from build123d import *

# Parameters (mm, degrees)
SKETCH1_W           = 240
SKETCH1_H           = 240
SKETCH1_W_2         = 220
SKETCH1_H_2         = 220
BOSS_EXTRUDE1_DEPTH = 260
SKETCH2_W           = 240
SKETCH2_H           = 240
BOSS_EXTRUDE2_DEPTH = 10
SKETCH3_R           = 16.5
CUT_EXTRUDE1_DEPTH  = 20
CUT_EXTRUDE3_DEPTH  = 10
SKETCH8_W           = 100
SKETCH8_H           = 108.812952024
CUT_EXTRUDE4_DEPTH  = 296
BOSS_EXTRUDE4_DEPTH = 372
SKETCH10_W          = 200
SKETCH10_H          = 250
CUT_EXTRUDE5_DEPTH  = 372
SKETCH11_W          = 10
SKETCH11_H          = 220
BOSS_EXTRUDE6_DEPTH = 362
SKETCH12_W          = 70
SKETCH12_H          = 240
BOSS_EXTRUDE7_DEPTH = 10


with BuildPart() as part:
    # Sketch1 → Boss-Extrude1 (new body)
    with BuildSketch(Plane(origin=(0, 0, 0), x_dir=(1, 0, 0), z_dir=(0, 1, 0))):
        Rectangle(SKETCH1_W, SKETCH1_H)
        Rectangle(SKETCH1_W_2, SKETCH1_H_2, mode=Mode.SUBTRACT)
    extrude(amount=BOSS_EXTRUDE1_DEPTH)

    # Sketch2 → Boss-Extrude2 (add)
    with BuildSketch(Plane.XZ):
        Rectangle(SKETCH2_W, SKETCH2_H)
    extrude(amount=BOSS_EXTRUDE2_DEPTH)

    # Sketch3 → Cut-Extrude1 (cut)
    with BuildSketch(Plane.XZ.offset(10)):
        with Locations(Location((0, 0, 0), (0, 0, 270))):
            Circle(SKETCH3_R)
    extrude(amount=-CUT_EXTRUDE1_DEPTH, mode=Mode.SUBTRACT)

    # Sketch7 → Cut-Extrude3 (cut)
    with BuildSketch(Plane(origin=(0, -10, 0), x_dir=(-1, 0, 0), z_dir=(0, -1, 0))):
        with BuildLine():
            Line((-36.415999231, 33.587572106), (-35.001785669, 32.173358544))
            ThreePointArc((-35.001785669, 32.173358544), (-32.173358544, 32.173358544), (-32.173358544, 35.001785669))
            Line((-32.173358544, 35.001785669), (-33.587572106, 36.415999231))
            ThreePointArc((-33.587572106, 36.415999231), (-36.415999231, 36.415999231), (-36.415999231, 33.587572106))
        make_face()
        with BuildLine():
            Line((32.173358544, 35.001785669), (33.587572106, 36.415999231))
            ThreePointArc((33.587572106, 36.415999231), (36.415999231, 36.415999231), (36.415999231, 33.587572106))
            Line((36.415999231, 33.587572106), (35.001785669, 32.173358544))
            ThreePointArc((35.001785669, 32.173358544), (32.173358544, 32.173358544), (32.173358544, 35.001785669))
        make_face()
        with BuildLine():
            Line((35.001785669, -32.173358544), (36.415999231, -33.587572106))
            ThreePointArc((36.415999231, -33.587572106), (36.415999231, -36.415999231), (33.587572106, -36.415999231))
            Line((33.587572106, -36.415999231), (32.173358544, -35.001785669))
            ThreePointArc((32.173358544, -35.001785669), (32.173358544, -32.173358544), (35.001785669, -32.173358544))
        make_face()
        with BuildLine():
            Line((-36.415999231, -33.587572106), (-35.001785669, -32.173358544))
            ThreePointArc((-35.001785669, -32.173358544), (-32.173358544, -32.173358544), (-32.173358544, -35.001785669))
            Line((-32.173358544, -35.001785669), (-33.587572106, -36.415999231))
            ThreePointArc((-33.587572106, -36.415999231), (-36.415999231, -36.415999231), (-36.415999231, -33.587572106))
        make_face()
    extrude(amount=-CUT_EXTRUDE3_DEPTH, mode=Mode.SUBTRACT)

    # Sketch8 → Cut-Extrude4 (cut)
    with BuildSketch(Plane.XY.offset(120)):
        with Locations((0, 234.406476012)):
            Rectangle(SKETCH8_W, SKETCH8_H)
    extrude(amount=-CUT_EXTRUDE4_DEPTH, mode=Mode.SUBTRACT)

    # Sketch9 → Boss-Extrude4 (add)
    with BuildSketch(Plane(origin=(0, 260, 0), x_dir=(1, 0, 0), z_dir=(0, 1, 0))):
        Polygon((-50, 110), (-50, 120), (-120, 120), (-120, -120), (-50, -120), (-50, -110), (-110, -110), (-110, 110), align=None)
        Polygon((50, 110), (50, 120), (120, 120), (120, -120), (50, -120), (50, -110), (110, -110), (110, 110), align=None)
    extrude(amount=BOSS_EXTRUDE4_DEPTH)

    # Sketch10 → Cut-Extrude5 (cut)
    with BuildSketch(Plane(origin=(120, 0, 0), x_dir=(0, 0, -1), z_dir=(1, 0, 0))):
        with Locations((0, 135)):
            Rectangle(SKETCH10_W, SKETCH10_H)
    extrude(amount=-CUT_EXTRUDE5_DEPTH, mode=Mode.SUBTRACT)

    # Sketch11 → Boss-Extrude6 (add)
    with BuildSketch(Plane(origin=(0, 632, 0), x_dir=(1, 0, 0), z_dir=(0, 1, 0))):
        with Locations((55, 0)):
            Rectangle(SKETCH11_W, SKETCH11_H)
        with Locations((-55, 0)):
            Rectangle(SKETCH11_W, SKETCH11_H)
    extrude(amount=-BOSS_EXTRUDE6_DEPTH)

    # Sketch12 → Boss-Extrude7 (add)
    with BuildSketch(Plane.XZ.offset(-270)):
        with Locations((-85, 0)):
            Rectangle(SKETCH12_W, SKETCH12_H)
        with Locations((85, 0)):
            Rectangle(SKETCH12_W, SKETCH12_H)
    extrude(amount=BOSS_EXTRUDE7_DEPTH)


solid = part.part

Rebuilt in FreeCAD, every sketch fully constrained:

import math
import FreeCAD as App
import Part
import Sketcher

V = App.Vector
Q = App.Units.Quantity

doc = App.newDocument("Part")
params = doc.addObject("Spreadsheet::Sheet", "Params")
for row, (alias, value) in enumerate([
    ("sketch1_width", "240 mm"),
    ("sketch1_width2", "220 mm"),
    ("pad1_length", "260 mm"),
    ("sketch2_width", "240 mm"),
    ("pad2_length", "10 mm"),
    ("sketch3_diameter", "33 mm"),
    ("pocket1_length", "20 mm"),
    ("sketch4_radius", "2 mm"),
    ("pocket2_length", "10 mm"),
    ("sketch5_width", "100 mm"),
    ("pocket3_length", "296 mm"),
    ("sketch6_width", "70 mm"),
    ("sketch6_width2", "60 mm"),
    ("sketch6_height", "10 mm"),
    ("sketch6_height2", "240 mm"),
    ("pad3_length", "372 mm"),
    ("sketch7_width", "250 mm"),
    ("sketch7_height", "200 mm"),
    ("pocket4_length", "372 mm"),
    ("sketch8_width", "10 mm"),
    ("sketch8_height", "220 mm"),
    ("pad4_length", "362 mm"),
    ("sketch9_width", "70 mm"),
    ("sketch9_height", "240 mm"),
    ("pad5_length", "10 mm"),
], start=1):
    params.set(f"A{row}", alias)
    params.set(f"B{row}", "=" + value)
    params.setAlias(f"B{row}", alias)

body = doc.addObject("PartDesign::Body", "Body")

# Sketch on XZ plane
sketch1 = doc.addObject("Sketcher::SketchObject", "Sketch")
body.addObject(sketch1)
sketch1.AttachmentSupport = (doc.XZ_Plane, [""])
sketch1.MapMode = "FlatFace"
sketch1.addGeometry([
    Part.LineSegment(V(-120, -120, 0), V(-120, 120, 0)),  # 0
    Part.LineSegment(V(-120, 120, 0), V(120, 120, 0)),  # 1
    Part.LineSegment(V(120, 120, 0), V(120, -120, 0)),  # 2
    Part.LineSegment(V(120, -120, 0), V(-120, -120, 0)),  # 3
    Part.LineSegment(V(110, 110, 0), V(-110, 110, 0)),  # 4
    Part.LineSegment(V(-110, 110, 0), V(-110, -110, 0)),  # 5
    Part.LineSegment(V(-110, -110, 0), V(110, -110, 0)),  # 6
    Part.LineSegment(V(110, -110, 0), V(110, 110, 0)),  # 7
], False)
sketch1.addConstraint([
    Sketcher.Constraint("Coincident", 0, 2, 1, 1),
    Sketcher.Constraint("Coincident", 1, 2, 2, 1),
    Sketcher.Constraint("Coincident", 2, 2, 3, 1),
    Sketcher.Constraint("Coincident", 3, 2, 0, 1),
    Sketcher.Constraint("Coincident", 4, 2, 5, 1),
    Sketcher.Constraint("Coincident", 5, 2, 6, 1),
    Sketcher.Constraint("Coincident", 6, 2, 7, 1),
    Sketcher.Constraint("Coincident", 7, 2, 4, 1),
    Sketcher.Constraint("Vertical", 0),
    Sketcher.Constraint("Horizontal", 1),
    Sketcher.Constraint("Vertical", 2),
    Sketcher.Constraint("Horizontal", 3),
    Sketcher.Constraint("Horizontal", 4),
    Sketcher.Constraint("Vertical", 5),
    Sketcher.Constraint("Horizontal", 6),
    Sketcher.Constraint("Vertical", 7),
    Sketcher.Constraint("Symmetric", 0, 2, 2, 2, -1, 1),
    Sketcher.Constraint("Symmetric", 4, 2, 6, 2, -1, 1),
    Sketcher.Constraint("Equal", 3, 0),
    Sketcher.Constraint("Equal", 6, 5),
    Sketcher.Constraint("DistanceX", 1, 1, 1, 2, Q("240 mm")),
    Sketcher.Constraint("DistanceX", 4, 2, 4, 1, Q("220 mm")),
])
sketch1.setExpression("Constraints[20]", "Params.sketch1_width")
sketch1.setExpression("Constraints[21]", "Params.sketch1_width2")
pad1 = doc.addObject("PartDesign::Pad", "Pad")
body.addObject(pad1)
pad1.Profile = sketch1
pad1.setExpression("Length", "Params.pad1_length")
pad1.Reversed = True

# Sketch on XZ plane
sketch2 = doc.addObject("Sketcher::SketchObject", "Sketch001")
body.addObject(sketch2)
sketch2.AttachmentSupport = (doc.XZ_Plane, [""])
sketch2.MapMode = "FlatFace"
sketch2.addGeometry([
    Part.LineSegment(V(-120, 120, 0), V(-120, -120, 0)),
    Part.LineSegment(V(-120, -120, 0), V(120, -120, 0)),
    Part.LineSegment(V(120, -120, 0), V(120, 120, 0)),
    Part.LineSegment(V(120, 120, 0), V(-120, 120, 0)),
], False)
sketch2.addConstraint([
    Sketcher.Constraint("Coincident", 0, 2, 1, 1),
    Sketcher.Constraint("Coincident", 1, 2, 2, 1),
    Sketcher.Constraint("Coincident", 2, 2, 3, 1),
    Sketcher.Constraint("Coincident", 3, 2, 0, 1),
    Sketcher.Constraint("Vertical", 0),
    Sketcher.Constraint("Horizontal", 1),
    Sketcher.Constraint("Vertical", 2),
    Sketcher.Constraint("Horizontal", 3),
    Sketcher.Constraint("Symmetric", 0, 2, 2, 2, -1, 1),
    Sketcher.Constraint("Equal", 3, 0),
    Sketcher.Constraint("DistanceX", 1, 1, 1, 2, Q("240 mm")),
])
sketch2.setExpression("Constraints[10]", "Params.sketch2_width")
pad2 = doc.addObject("PartDesign::Pad", "Pad001")
body.addObject(pad2)
pad2.Profile = sketch2
pad2.setExpression("Length", "Params.pad2_length")

# Sketch on XZ plane
sketch3 = doc.addObject("Sketcher::SketchObject", "Sketch002")
body.addObject(sketch3)
sketch3.AttachmentSupport = (doc.XZ_Plane, [""])
sketch3.MapMode = "FlatFace"
sketch3.AttachmentOffset = App.Placement(V(0, 0, 10), App.Rotation())
sketch3.addGeometry(Part.Circle(V(0, 0, 0), V(0, 0, 1), 16), False)
sketch3.addConstraint([
    Sketcher.Constraint("Coincident", 0, 3, -1, 1),
    Sketcher.Constraint("Diameter", 0, Q("33 mm")),
])
sketch3.setExpression("Constraints[1]", "Params.sketch3_diameter")
pocket1 = doc.addObject("PartDesign::Pocket", "Pocket")
body.addObject(pocket1)
pocket1.Profile = sketch3
pocket1.setExpression("Length", "Params.pocket1_length")

# Sketch on XZ plane
sketch4 = doc.addObject("Sketcher::SketchObject", "Sketch003")
body.addObject(sketch4)
sketch4.AttachmentSupport = (doc.XZ_Plane, [""])
sketch4.MapMode = "FlatFace"
sketch4.AttachmentOffset = App.Placement(V(0, 0, 10), App.Rotation())
sketch4.addGeometry([
    Part.LineSegment(V(36.4, -33.6, 0), V(35, -32.2, 0)),  # 0
    Part.ArcOfCircle(Part.Circle(V(33.6, -33.6, 0), V(0, 0, 1), 2), math.radians(45), math.radians(225)),  # 1
    Part.LineSegment(V(32.2, -35, 0), V(33.6, -36.4, 0)),  # 2
    Part.ArcOfCircle(Part.Circle(V(35, -35, 0), V(0, 0, 1), 2), math.radians(-135), math.radians(45)),  # 3
    Part.LineSegment(V(-33.6, -36.4, 0), V(-32.2, -35, 0)),  # 4
    Part.ArcOfCircle(Part.Circle(V(-33.6, -33.6, 0), V(0, 0, 1), 2), math.radians(-45), math.radians(135)),  # 5
    Part.LineSegment(V(-35, -32.2, 0), V(-36.4, -33.6, 0)),  # 6
    Part.ArcOfCircle(Part.Circle(V(-35, -35, 0), V(0, 0, 1), 2), math.radians(135), math.radians(315)),  # 7
    Part.LineSegment(V(-36.4, 33.6, 0), V(-35, 32.2, 0)),  # 8
    Part.ArcOfCircle(Part.Circle(V(-33.6, 33.6, 0), V(0, 0, 1), 2), math.radians(-135), math.radians(45)),  # 9
    Part.LineSegment(V(-32.2, 35, 0), V(-33.6, 36.4, 0)),  # 10
    Part.ArcOfCircle(Part.Circle(V(-35, 35, 0), V(0, 0, 1), 2), math.radians(45), math.radians(225)),  # 11
    Part.LineSegment(V(35, 32.2, 0), V(36.4, 33.6, 0)),  # 12
    Part.ArcOfCircle(Part.Circle(V(35, 35, 0), V(0, 0, 1), 2), math.radians(-45), math.radians(135)),  # 13
    Part.LineSegment(V(33.6, 36.4, 0), V(32.2, 35, 0)),  # 14
    Part.ArcOfCircle(Part.Circle(V(33.6, 33.6, 0), V(0, 0, 1), 2), math.radians(135), math.radians(315)),  # 15
], False)
sketch4.addConstraint([
    Sketcher.Constraint("Tangent", 0, 2, 1, 1),
    Sketcher.Constraint("Tangent", 1, 2, 2, 1),
    Sketcher.Constraint("Tangent", 2, 2, 3, 1),
    Sketcher.Constraint("Tangent", 3, 2, 0, 1),
    Sketcher.Constraint("Tangent", 4, 2, 5, 1),
    Sketcher.Constraint("Tangent", 5, 2, 6, 1),
    Sketcher.Constraint("Tangent", 6, 2, 7, 1),
    Sketcher.Constraint("Tangent", 7, 2, 4, 1),
    Sketcher.Constraint("Tangent", 8, 2, 9, 1),
    Sketcher.Constraint("Tangent", 9, 2, 10, 1),
    Sketcher.Constraint("Tangent", 10, 2, 11, 1),
    Sketcher.Constraint("Tangent", 11, 2, 8, 1),
    Sketcher.Constraint("Tangent", 12, 2, 13, 1),
    Sketcher.Constraint("Tangent", 13, 2, 14, 1),
    Sketcher.Constraint("Tangent", 14, 2, 15, 1),
    Sketcher.Constraint("Tangent", 15, 2, 12, 1),
    Sketcher.Constraint("Equal", 1, 3),
    Sketcher.Constraint("Equal", 3, 5),
    Sketcher.Constraint("Equal", 5, 7),
    Sketcher.Constraint("Equal", 7, 9),
    Sketcher.Constraint("Equal", 9, 11),
    Sketcher.Constraint("Equal", 11, 13),
    Sketcher.Constraint("Equal", 13, 15),
    Sketcher.Constraint("Symmetric", 1, 3, 9, 3, -1, 1),
    Sketcher.Constraint("Symmetric", 3, 3, 11, 3, -1, 1),
    Sketcher.Constraint("Symmetric", 7, 3, 13, 3, -1, 1),
    Sketcher.Constraint("Symmetric", 5, 3, 15, 3, -1, 1),
    Sketcher.Constraint("Symmetric", 1, 3, 5, 3, -2),
    Sketcher.Constraint("Symmetric", 3, 3, 7, 3, -2),
    Sketcher.Constraint("Perpendicular", 2, 4),
    Sketcher.Constraint("Horizontal", 7, 3, 1, 2),
    Sketcher.Constraint("Radius", 1, Q("2 mm")),
    Sketcher.Constraint("DistanceY", 2, 2, -1, 1, Q("36.415999 mm")),
    Sketcher.Constraint("DistanceX", -1, 1, 3, 2, Q("36.415999 mm")),
])
sketch4.setExpression("Constraints[31]", "Params.sketch4_radius")
pocket2 = doc.addObject("PartDesign::Pocket", "Pocket001")
body.addObject(pocket2)
pocket2.Profile = sketch4
pocket2.setExpression("Length", "Params.pocket2_length")

# Sketch on XY plane
sketch5 = doc.addObject("Sketcher::SketchObject", "Sketch004")
body.addObject(sketch5)
sketch5.AttachmentSupport = (doc.XY_Plane, [""])
sketch5.MapMode = "FlatFace"
sketch5.AttachmentOffset = App.Placement(V(0, 0, 120), App.Rotation())
sketch5.addGeometry([
    Part.LineSegment(V(-50, 289, 0), V(-50, 180, 0)),
    Part.LineSegment(V(-50, 180, 0), V(50, 180, 0)),
    Part.LineSegment(V(50, 180, 0), V(50, 289, 0)),
    Part.LineSegment(V(50, 289, 0), V(-50, 289, 0)),
], False)
sketch5.addConstraint([
    Sketcher.Constraint("Coincident", 0, 2, 1, 1),
    Sketcher.Constraint("Coincident", 1, 2, 2, 1),
    Sketcher.Constraint("Coincident", 2, 2, 3, 1),
    Sketcher.Constraint("Coincident", 3, 2, 0, 1),
    Sketcher.Constraint("Vertical", 0),
    Sketcher.Constraint("Horizontal", 1),
    Sketcher.Constraint("Vertical", 2),
    Sketcher.Constraint("Horizontal", 3),
    Sketcher.Constraint("DistanceX", 1, 1, 1, 2, Q("100 mm")),
    Sketcher.Constraint("DistanceX", 0, 2, -1, 1, Q("50 mm")),
    Sketcher.Constraint("DistanceY", -1, 1, 0, 2, Q("180 mm")),
    Sketcher.Constraint("DistanceY", 0, 2, 0, 1, Q("108.812952 mm")),
])
sketch5.setExpression("Constraints[8]", "Params.sketch5_width")
pocket3 = doc.addObject("PartDesign::Pocket", "Pocket002")
body.addObject(pocket3)
pocket3.Profile = sketch5
pocket3.setExpression("Length", "Params.pocket3_length")

# Sketch on XZ plane
sketch6 = doc.addObject("Sketcher::SketchObject", "Sketch005")
body.addObject(sketch6)
sketch6.AttachmentSupport = (doc.XZ_Plane, [""])
sketch6.MapMode = "FlatFace"
sketch6.AttachmentOffset = App.Placement(V(0, 0, -260), App.Rotation())
sketch6.addGeometry([
    Part.LineSegment(V(-50, -110, 0), V(-50, -120, 0)),  # 0
    Part.LineSegment(V(-50, -120, 0), V(-120, -120, 0)),  # 1
    Part.LineSegment(V(-120, -120, 0), V(-120, 120, 0)),  # 2
    Part.LineSegment(V(-120, 120, 0), V(-50, 120, 0)),  # 3
    Part.LineSegment(V(-50, 120, 0), V(-50, 110, 0)),  # 4
    Part.LineSegment(V(-50, 110, 0), V(-110, 110, 0)),  # 5
    Part.LineSegment(V(-110, 110, 0), V(-110, -110, 0)),  # 6
    Part.LineSegment(V(-110, -110, 0), V(-50, -110, 0)),  # 7
    Part.LineSegment(V(50, -120, 0), V(50, -110, 0)),  # 8
    Part.LineSegment(V(50, -110, 0), V(110, -110, 0)),  # 9
    Part.LineSegment(V(110, -110, 0), V(110, 110, 0)),  # 10
    Part.LineSegment(V(110, 110, 0), V(50, 110, 0)),  # 11
    Part.LineSegment(V(50, 110, 0), V(50, 120, 0)),  # 12
    Part.LineSegment(V(50, 120, 0), V(120, 120, 0)),  # 13
    Part.LineSegment(V(120, 120, 0), V(120, -120, 0)),  # 14
    Part.LineSegment(V(120, -120, 0), V(50, -120, 0)),  # 15
], False)
sketch6.addConstraint([
    Sketcher.Constraint("Coincident", 0, 2, 1, 1),
    Sketcher.Constraint("Coincident", 1, 2, 2, 1),
    Sketcher.Constraint("Coincident", 2, 2, 3, 1),
    Sketcher.Constraint("Coincident", 3, 2, 4, 1),
    Sketcher.Constraint("Coincident", 4, 2, 5, 1),
    Sketcher.Constraint("Coincident", 5, 2, 6, 1),
    Sketcher.Constraint("Coincident", 6, 2, 7, 1),
    Sketcher.Constraint("Coincident", 7, 2, 0, 1),
    Sketcher.Constraint("Coincident", 8, 2, 9, 1),
    Sketcher.Constraint("Coincident", 9, 2, 10, 1),
    Sketcher.Constraint("Coincident", 10, 2, 11, 1),
    Sketcher.Constraint("Coincident", 11, 2, 12, 1),
    Sketcher.Constraint("Coincident", 12, 2, 13, 1),
    Sketcher.Constraint("Coincident", 13, 2, 14, 1),
    Sketcher.Constraint("Coincident", 14, 2, 15, 1),
    Sketcher.Constraint("Coincident", 15, 2, 8, 1),
    Sketcher.Constraint("Vertical", 0),
    Sketcher.Constraint("Horizontal", 1),
    Sketcher.Constraint("Vertical", 2),
    Sketcher.Constraint("Horizontal", 3),
    Sketcher.Constraint("Vertical", 4),
    Sketcher.Constraint("Horizontal", 5),
    Sketcher.Constraint("Vertical", 6),
    Sketcher.Constraint("Horizontal", 7),
    Sketcher.Constraint("Vertical", 8),
    Sketcher.Constraint("Horizontal", 9),
    Sketcher.Constraint("Vertical", 10),
    Sketcher.Constraint("Horizontal", 11),
    Sketcher.Constraint("Vertical", 12),
    Sketcher.Constraint("Horizontal", 13),
    Sketcher.Constraint("Vertical", 14),
    Sketcher.Constraint("Horizontal", 15),
    Sketcher.Constraint("Symmetric", 4, 2, 8, 2, -1, 1),
    Sketcher.Constraint("Symmetric", 6, 2, 10, 2, -1, 1),
    Sketcher.Constraint("Symmetric", 0, 2, 12, 2, -1, 1),
    Sketcher.Constraint("Symmetric", 2, 2, 14, 2, -1, 1),
    Sketcher.Constraint("Symmetric", 7, 2, 8, 2, -2),
    Sketcher.Constraint("Horizontal", 3, 2, 12, 2),
    Sketcher.Constraint("DistanceX", 1, 2, 1, 1, Q("70 mm")),
    Sketcher.Constraint("DistanceX", 5, 2, 5, 1, Q("60 mm")),
    Sketcher.Constraint("DistanceY", 0, 2, 0, 1, Q("10 mm")),
    Sketcher.Constraint("DistanceY", 2, 1, 2, 2, Q("240 mm")),
    Sketcher.Constraint("DistanceX", 0, 2, -1, 1, Q("50 mm")),
])
sketch6.setExpression("Constraints[38]", "Params.sketch6_width")
sketch6.setExpression("Constraints[39]", "Params.sketch6_width2")
sketch6.setExpression("Constraints[40]", "Params.sketch6_height")
sketch6.setExpression("Constraints[41]", "Params.sketch6_height2")
pad3 = doc.addObject("PartDesign::Pad", "Pad002")
body.addObject(pad3)
pad3.Profile = sketch6
pad3.setExpression("Length", "Params.pad3_length")
pad3.Reversed = True

# Sketch on YZ plane
sketch7 = doc.addObject("Sketcher::SketchObject", "Sketch006")
body.addObject(sketch7)
sketch7.AttachmentSupport = (doc.YZ_Plane, [""])
sketch7.MapMode = "FlatFace"
sketch7.AttachmentOffset = App.Placement(V(0, 0, 120), App.Rotation())
sketch7.addGeometry([
    Part.LineSegment(V(260, 100, 0), V(10, 100, 0)),
    Part.LineSegment(V(10, 100, 0), V(10, -100, 0)),
    Part.LineSegment(V(10, -100, 0), V(260, -100, 0)),
    Part.LineSegment(V(260, -100, 0), V(260, 100, 0)),
], False)
sketch7.addConstraint([
    Sketcher.Constraint("Coincident", 0, 2, 1, 1),
    Sketcher.Constraint("Coincident", 1, 2, 2, 1),
    Sketcher.Constraint("Coincident", 2, 2, 3, 1),
    Sketcher.Constraint("Coincident", 3, 2, 0, 1),
    Sketcher.Constraint("Horizontal", 0),
    Sketcher.Constraint("Vertical", 1),
    Sketcher.Constraint("Horizontal", 2),
    Sketcher.Constraint("Vertical", 3),
    Sketcher.Constraint("DistanceX", 0, 2, 0, 1, Q("250 mm")),
    Sketcher.Constraint("DistanceY", 1, 2, 1, 1, Q("200 mm")),
    Sketcher.Constraint("DistanceX", -1, 1, 0, 2, Q("10 mm")),
    Sketcher.Constraint("DistanceY", -1, 1, 0, 2, Q("100 mm")),
])
sketch7.setExpression("Constraints[8]", "Params.sketch7_width")
sketch7.setExpression("Constraints[9]", "Params.sketch7_height")
pocket4 = doc.addObject("PartDesign::Pocket", "Pocket003")
body.addObject(pocket4)
pocket4.Profile = sketch7
pocket4.setExpression("Length", "Params.pocket4_length")

# Sketch on XZ plane
sketch8 = doc.addObject("Sketcher::SketchObject", "Sketch007")
body.addObject(sketch8)
sketch8.AttachmentSupport = (doc.XZ_Plane, [""])
sketch8.MapMode = "FlatFace"
sketch8.AttachmentOffset = App.Placement(V(0, 0, -632), App.Rotation())
sketch8.addGeometry([
    Part.LineSegment(V(50, -110, 0), V(50, 110, 0)),  # 0
    Part.LineSegment(V(50, 110, 0), V(60, 110, 0)),  # 1
    Part.LineSegment(V(60, 110, 0), V(60, -110, 0)),  # 2
    Part.LineSegment(V(60, -110, 0), V(50, -110, 0)),  # 3
    Part.LineSegment(V(-60, -110, 0), V(-60, 110, 0)),  # 4
    Part.LineSegment(V(-60, 110, 0), V(-50, 110, 0)),  # 5
    Part.LineSegment(V(-50, 110, 0), V(-50, -110, 0)),  # 6
    Part.LineSegment(V(-50, -110, 0), V(-60, -110, 0)),  # 7
], False)
sketch8.addConstraint([
    Sketcher.Constraint("Coincident", 0, 2, 1, 1),
    Sketcher.Constraint("Coincident", 1, 2, 2, 1),
    Sketcher.Constraint("Coincident", 2, 2, 3, 1),
    Sketcher.Constraint("Coincident", 3, 2, 0, 1),
    Sketcher.Constraint("Coincident", 4, 2, 5, 1),
    Sketcher.Constraint("Coincident", 5, 2, 6, 1),
    Sketcher.Constraint("Coincident", 6, 2, 7, 1),
    Sketcher.Constraint("Coincident", 7, 2, 4, 1),
    Sketcher.Constraint("Vertical", 0),
    Sketcher.Constraint("Horizontal", 1),
    Sketcher.Constraint("Vertical", 2),
    Sketcher.Constraint("Horizontal", 3),
    Sketcher.Constraint("Vertical", 4),
    Sketcher.Constraint("Horizontal", 5),
    Sketcher.Constraint("Vertical", 6),
    Sketcher.Constraint("Horizontal", 7),
    Sketcher.Constraint("Symmetric", 2, 2, 4, 2, -1, 1),
    Sketcher.Constraint("Symmetric", 0, 2, 6, 2, -1, 1),
    Sketcher.Constraint("Horizontal", 1, 2, 4, 2),
    Sketcher.Constraint("DistanceX", 1, 1, 1, 2, Q("10 mm")),
    Sketcher.Constraint("DistanceY", 0, 1, 0, 2, Q("220 mm")),
    Sketcher.Constraint("DistanceX", -1, 1, 0, 2, Q("50 mm")),
])
sketch8.setExpression("Constraints[19]", "Params.sketch8_width")
sketch8.setExpression("Constraints[20]", "Params.sketch8_height")
pad4 = doc.addObject("PartDesign::Pad", "Pad003")
body.addObject(pad4)
pad4.Profile = sketch8
pad4.setExpression("Length", "Params.pad4_length")

# Sketch on XZ plane
sketch9 = doc.addObject("Sketcher::SketchObject", "Sketch008")
body.addObject(sketch9)
sketch9.AttachmentSupport = (doc.XZ_Plane, [""])
sketch9.MapMode = "FlatFace"
sketch9.AttachmentOffset = App.Placement(V(0, 0, -270), App.Rotation())
sketch9.addGeometry([
    Part.LineSegment(V(-120, 120, 0), V(-120, -120, 0)),  # 0
    Part.LineSegment(V(-120, -120, 0), V(-50, -120, 0)),  # 1
    Part.LineSegment(V(-50, -120, 0), V(-50, 120, 0)),  # 2
    Part.LineSegment(V(-50, 120, 0), V(-120, 120, 0)),  # 3
    Part.LineSegment(V(50, 120, 0), V(50, -120, 0)),  # 4
    Part.LineSegment(V(50, -120, 0), V(120, -120, 0)),  # 5
    Part.LineSegment(V(120, -120, 0), V(120, 120, 0)),  # 6
    Part.LineSegment(V(120, 120, 0), V(50, 120, 0)),  # 7
], False)
sketch9.addConstraint([
    Sketcher.Constraint("Coincident", 0, 2, 1, 1),
    Sketcher.Constraint("Coincident", 1, 2, 2, 1),
    Sketcher.Constraint("Coincident", 2, 2, 3, 1),
    Sketcher.Constraint("Coincident", 3, 2, 0, 1),
    Sketcher.Constraint("Coincident", 4, 2, 5, 1),
    Sketcher.Constraint("Coincident", 5, 2, 6, 1),
    Sketcher.Constraint("Coincident", 6, 2, 7, 1),
    Sketcher.Constraint("Coincident", 7, 2, 4, 1),
    Sketcher.Constraint("Vertical", 0),
    Sketcher.Constraint("Horizontal", 1),
    Sketcher.Constraint("Vertical", 2),
    Sketcher.Constraint("Horizontal", 3),
    Sketcher.Constraint("Vertical", 4),
    Sketcher.Constraint("Horizontal", 5),
    Sketcher.Constraint("Vertical", 6),
    Sketcher.Constraint("Horizontal", 7),
    Sketcher.Constraint("Symmetric", 2, 2, 4, 2, -1, 1),
    Sketcher.Constraint("Symmetric", 0, 2, 6, 2, -1, 1),
    Sketcher.Constraint("Horizontal", 1, 2, 4, 2),
    Sketcher.Constraint("DistanceX", 1, 1, 1, 2, Q("70 mm")),
    Sketcher.Constraint("DistanceY", 0, 2, 0, 1, Q("240 mm")),
    Sketcher.Constraint("DistanceX", 0, 2, -1, 1, Q("120 mm")),
])
sketch9.setExpression("Constraints[19]", "Params.sketch9_width")
sketch9.setExpression("Constraints[20]", "Params.sketch9_height")
pad5 = doc.addObject("PartDesign::Pad", "Pad004")
body.addObject(pad5)
pad5.Profile = sketch9
pad5.setExpression("Length", "Params.pad5_length")

doc.recompute()
